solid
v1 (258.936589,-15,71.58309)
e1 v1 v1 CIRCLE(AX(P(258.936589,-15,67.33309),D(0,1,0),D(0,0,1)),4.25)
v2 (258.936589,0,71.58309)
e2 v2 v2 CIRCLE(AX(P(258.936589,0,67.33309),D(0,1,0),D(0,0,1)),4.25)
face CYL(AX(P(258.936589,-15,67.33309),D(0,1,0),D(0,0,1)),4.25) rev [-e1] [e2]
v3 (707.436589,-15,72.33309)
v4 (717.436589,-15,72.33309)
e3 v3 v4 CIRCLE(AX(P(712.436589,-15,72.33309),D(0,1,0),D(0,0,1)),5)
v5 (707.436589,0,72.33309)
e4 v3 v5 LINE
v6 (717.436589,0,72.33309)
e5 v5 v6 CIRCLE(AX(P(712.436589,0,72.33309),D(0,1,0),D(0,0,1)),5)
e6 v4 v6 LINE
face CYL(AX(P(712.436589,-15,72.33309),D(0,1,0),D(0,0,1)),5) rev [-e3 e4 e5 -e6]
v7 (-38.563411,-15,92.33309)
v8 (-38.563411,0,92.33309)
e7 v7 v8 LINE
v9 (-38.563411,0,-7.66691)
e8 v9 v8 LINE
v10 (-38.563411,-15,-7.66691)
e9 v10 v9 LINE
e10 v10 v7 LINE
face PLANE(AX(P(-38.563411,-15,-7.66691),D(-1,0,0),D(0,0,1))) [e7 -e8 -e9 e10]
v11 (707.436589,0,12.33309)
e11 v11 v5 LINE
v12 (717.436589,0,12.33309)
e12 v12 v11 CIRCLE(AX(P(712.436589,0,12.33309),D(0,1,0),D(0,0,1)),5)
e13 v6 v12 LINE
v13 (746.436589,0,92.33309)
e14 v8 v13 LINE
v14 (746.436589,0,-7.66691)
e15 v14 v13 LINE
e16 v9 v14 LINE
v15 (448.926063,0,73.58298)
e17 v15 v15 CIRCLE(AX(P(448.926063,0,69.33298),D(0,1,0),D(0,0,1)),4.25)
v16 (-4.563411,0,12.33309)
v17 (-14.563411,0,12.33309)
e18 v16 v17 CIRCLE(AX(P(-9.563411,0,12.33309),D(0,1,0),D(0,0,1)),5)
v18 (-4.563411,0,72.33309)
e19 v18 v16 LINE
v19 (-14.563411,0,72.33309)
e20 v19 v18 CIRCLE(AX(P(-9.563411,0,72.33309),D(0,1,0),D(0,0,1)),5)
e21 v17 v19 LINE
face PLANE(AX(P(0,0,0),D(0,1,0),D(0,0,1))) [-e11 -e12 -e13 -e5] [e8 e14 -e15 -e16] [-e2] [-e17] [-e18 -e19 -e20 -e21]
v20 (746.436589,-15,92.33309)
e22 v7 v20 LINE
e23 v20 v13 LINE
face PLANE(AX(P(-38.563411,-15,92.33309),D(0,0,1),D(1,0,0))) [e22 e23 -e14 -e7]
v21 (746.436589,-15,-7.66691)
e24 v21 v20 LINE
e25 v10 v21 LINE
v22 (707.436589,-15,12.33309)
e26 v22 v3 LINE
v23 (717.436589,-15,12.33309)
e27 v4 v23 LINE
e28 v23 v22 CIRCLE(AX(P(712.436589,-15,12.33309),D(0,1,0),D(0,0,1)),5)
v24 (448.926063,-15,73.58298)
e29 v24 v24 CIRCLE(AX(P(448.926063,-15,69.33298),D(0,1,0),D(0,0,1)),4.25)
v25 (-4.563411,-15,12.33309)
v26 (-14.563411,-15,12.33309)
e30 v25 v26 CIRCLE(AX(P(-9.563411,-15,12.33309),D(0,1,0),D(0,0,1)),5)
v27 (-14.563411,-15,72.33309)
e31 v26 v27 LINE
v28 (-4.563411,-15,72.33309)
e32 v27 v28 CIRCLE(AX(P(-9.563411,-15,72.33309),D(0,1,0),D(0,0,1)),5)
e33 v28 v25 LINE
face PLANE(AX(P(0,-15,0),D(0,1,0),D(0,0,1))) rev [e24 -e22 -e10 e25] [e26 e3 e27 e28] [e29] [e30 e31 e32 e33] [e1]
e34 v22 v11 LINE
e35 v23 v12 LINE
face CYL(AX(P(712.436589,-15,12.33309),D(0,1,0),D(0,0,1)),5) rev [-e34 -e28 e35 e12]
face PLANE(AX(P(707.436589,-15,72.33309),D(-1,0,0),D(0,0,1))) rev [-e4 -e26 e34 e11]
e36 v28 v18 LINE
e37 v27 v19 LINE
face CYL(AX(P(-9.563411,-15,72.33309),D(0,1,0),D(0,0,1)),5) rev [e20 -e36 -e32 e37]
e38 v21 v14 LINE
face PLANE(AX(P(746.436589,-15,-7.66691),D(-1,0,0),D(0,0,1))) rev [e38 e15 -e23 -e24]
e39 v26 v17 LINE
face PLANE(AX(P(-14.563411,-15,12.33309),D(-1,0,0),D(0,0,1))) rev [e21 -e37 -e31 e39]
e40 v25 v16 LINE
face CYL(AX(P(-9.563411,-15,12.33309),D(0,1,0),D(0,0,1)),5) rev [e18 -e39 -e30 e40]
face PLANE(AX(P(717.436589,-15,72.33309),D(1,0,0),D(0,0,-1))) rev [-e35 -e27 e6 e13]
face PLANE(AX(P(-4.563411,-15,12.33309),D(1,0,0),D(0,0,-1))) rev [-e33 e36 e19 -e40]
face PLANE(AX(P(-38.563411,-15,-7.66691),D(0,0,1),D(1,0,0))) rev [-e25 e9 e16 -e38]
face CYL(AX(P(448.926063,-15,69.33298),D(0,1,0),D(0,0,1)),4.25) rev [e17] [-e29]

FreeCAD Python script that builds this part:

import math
import FreeCAD as App
import Part
import Sketcher

V = App.Vector
Q = App.Units.Quantity

doc = App.newDocument("Part")
body = doc.addObject("PartDesign::Body", "Body")

sketch1 = body.newObject("Sketcher::SketchObject", "Sketch")
sketch1.AttachmentSupport = (doc.getObject("XZ_Plane"), [""])
sketch1.MapMode = "FlatFace"
sketch1.addGeometry([
    Part.LineSegment(V(-39, -8, 0), V(-39, 92, 0)),
    Part.LineSegment(V(-39, 92, 0), V(746, 92, 0)),
    Part.LineSegment(V(746, 92, 0), V(746, -8, 0)),
    Part.LineSegment(V(746, -8, 0), V(-39, -8, 0)),
], False)
sketch1.addConstraint([
    Sketcher.Constraint("Coincident", 0, 2, 1, 1),
    Sketcher.Constraint("Coincident", 1, 2, 2, 1),
    Sketcher.Constraint("Coincident", 2, 2, 3, 1),
    Sketcher.Constraint("Coincident", 3, 2, 0, 1),
    Sketcher.Constraint("Vertical", 0),
    Sketcher.Constraint("Horizontal", 1),
    Sketcher.Constraint("Vertical", 2),
    Sketcher.Constraint("Horizontal", 3),
    Sketcher.Constraint("DistanceX", 1, 1, 1, 2, Q("785 mm")),
    Sketcher.Constraint("DistanceY", 0, 1, 0, 2, Q("100 mm")),
    Sketcher.Constraint("DistanceX", 0, 2, -1, 1, Q("38.563411 mm")),
    Sketcher.Constraint("DistanceY", -1, 1, 0, 2, Q("92.33309 mm")),
])
pad1 = body.newObject("PartDesign::Pad", "Pad")
pad1.Profile = sketch1
pad1.Length = 15

sketch2 = body.newObject("Sketcher::SketchObject", "Sketch001")
sketch2.AttachmentSupport = (doc.getObject("XZ_Plane"), [""])
sketch2.MapMode = "FlatFace"
sketch2.addGeometry([
    Part.Circle(V(258.9, 67.3, 0), V(0, 0, 1), 4.2),
    Part.Circle(V(448.9, 69.3, 0), V(0, 0, 1), 4.2),
], False)
sketch2.addConstraint([
    Sketcher.Constraint("Equal", 0, 1),
    Sketcher.Constraint("Diameter", 0, Q("8.5 mm")),
    Sketcher.Constraint("DistanceX", -1, 1, 0, 3, Q("258.936589 mm")),
    Sketcher.Constraint("DistanceY", -1, 1, 0, 3, Q("67.33309 mm")),
    Sketcher.Constraint("DistanceY", -1, 1, 1, 3, Q("69.33298 mm")),
    Sketcher.Constraint("DistanceX", -1, 1, 1, 3, Q("448.926063 mm")),
])
pocket1 = body.newObject("PartDesign::Pocket", "Pocket")
pocket1.Profile = sketch2
pocket1.Type = "ThroughAll"
pocket1.Reversed = True

sketch3 = body.newObject("Sketcher::SketchObject", "Sketch002")
sketch3.AttachmentSupport = (doc.getObject("XZ_Plane"), [""])
sketch3.MapMode = "FlatFace"
sketch3.addGeometry([
    Part.LineSegment(V(717, 72, 0), V(717, 12, 0)),
    Part.ArcOfCircle(Part.Circle(V(712, 12, 0), V(0, 0, 1), 5), math.radians(180), math.radians(360)),
    Part.LineSegment(V(707, 12, 0), V(707, 72, 0)),
    Part.ArcOfCircle(Part.Circle(V(712, 72, 0), V(0, 0, 1), 5), math.radians(0), math.radians(180)),
    Part.LineSegment(V(-5, 72, 0), V(-5, 12, 0)),
    Part.ArcOfCircle(Part.Circle(V(-10, 12, 0), V(0, 0, 1), 5), math.radians(180), math.radians(360)),
    Part.LineSegment(V(-15, 12, 0), V(-15, 72, 0)),
    Part.ArcOfCircle(Part.Circle(V(-10, 72, 0), V(0, 0, 1), 5), math.radians(0), math.radians(180)),
], False)
sketch3.addConstraint([
    Sketcher.Constraint("Tangent", 0, 2, 1, 2),
    Sketcher.Constraint("Tangent", 1, 1, 2, 1),
    Sketcher.Constraint("Tangent", 2, 2, 3, 2),
    Sketcher.Constraint("Tangent", 3, 1, 0, 1),
    Sketcher.Constraint("Tangent", 4, 2, 5, 2),
    Sketcher.Constraint("Tangent", 5, 1, 6, 1),
    Sketcher.Constraint("Tangent", 6, 2, 7, 2),
    Sketcher.Constraint("Tangent", 7, 1, 4, 1),
    Sketcher.Constraint("Vertical", 0),
    Sketcher.Constraint("Vertical", 2),
    Sketcher.Constraint("Vertical", 4),
    Sketcher.Constraint("Vertical", 6),
    Sketcher.Constraint("Equal", 3, 5),
    Sketcher.Constraint("Horizontal", 1, 3, 5, 3),
    Sketcher.Constraint("Horizontal", 3, 3, 7, 3),
    Sketcher.Constraint("Radius", 1, Q("5 mm")),
    Sketcher.Constraint("DistanceY", 0, 2, 0, 1, Q("60 mm")),
    Sketcher.Constraint("DistanceX", 5, 3, 1, 3, Q("722 mm")),
    Sketcher.Constraint("DistanceX", -1, 1, 1, 3, Q("712.436589 mm")),
    Sketcher.Constraint("DistanceY", -1, 1, 1, 3, Q("12.33309 mm")),
])
pocket2 = body.newObject("PartDesign::Pocket", "Pocket001")
pocket2.Profile = sketch3
pocket2.Type = "ThroughAll"
pocket2.Reversed = True

doc.recompute()
